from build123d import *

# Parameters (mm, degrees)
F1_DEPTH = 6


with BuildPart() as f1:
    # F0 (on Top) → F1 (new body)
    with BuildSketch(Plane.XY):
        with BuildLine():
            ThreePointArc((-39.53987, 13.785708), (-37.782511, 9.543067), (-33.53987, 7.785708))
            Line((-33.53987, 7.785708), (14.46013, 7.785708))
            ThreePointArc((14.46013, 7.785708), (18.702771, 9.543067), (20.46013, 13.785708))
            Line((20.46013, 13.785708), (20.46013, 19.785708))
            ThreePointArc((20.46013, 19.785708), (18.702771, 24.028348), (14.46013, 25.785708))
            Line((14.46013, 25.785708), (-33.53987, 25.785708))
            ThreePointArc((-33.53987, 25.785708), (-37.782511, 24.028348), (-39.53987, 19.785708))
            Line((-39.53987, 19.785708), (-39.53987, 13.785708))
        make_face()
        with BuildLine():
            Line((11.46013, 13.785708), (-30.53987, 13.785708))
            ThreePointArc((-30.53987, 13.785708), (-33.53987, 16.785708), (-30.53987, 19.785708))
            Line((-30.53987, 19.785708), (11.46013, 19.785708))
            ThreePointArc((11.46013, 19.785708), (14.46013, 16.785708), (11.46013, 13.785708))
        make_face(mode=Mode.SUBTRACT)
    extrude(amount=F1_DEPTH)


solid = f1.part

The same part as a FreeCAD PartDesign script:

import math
import FreeCAD as App
import Part
import Sketcher

V = App.Vector
Q = App.Units.Quantity

doc = App.newDocument("Part")
body = doc.addObject("PartDesign::Body", "Body")

# Sketch on XY plane
sketch1 = body.newObject("Sketcher::SketchObject", "Sketch")
sketch1.AttachmentSupport = (doc.getObject("XY_Plane"), [""])
sketch1.MapMode = "FlatFace"
sketch1.addGeometry(Part.ArcOfCircle(Part.Circle(V(-33.5, 13.8, 0), V(0, 0, 1), 6), math.radians(180), math.radians(270)), False)
sketch1.addGeometry(Part.LineSegment(V(-33.5, 7.8, 0), V(14.5, 7.8, 0)), False)
sketch1.addGeometry(Part.ArcOfCircle(Part.Circle(V(14.5, 13.8, 0), V(0, 0, 1), 6), math.radians(-90), math.radians(0)), False)
sketch1.addGeometry(Part.LineSegment(V(20.5, 13.8, 0), V(20.5, 19.8, 0)), False)
sketch1.addGeometry(Part.ArcOfCircle(Part.Circle(V(14.5, 19.8, 0), V(0, 0, 1), 6), math.radians(0), math.radians(90)), False)
sketch1.addGeometry(Part.LineSegment(V(14.5, 25.8, 0), V(-33.5, 25.8, 0)), False)
sketch1.addGeometry(Part.ArcOfCircle(Part.Circle(V(-33.5, 19.8, 0), V(0, 0, 1), 6), math.radians(90), math.radians(180)), False)
sketch1.addGeometry(Part.LineSegment(V(-39.5, 19.8, 0), V(-39.5, 13.8, 0)), False)
sketch1.addGeometry(Part.ArcOfCircle(Part.Circle(V(11.5, 16.8, 0), V(0, 0, 1), 3), math.radians(-90), math.radians(90)), False)
sketch1.addGeometry(Part.LineSegment(V(11.5, 13.8, 0), V(-30.5, 13.8, 0)), False)
sketch1.addGeometry(Part.ArcOfCircle(Part.Circle(V(-30.5, 16.8, 0), V(0, 0, 1), 3), math.radians(90), math.radians(270)), False)
sketch1.addGeometry(Part.LineSegment(V(-30.5, 19.8, 0), V(11.5, 19.8, 0)), False)
sketch1.addConstraint(Sketcher.Constraint("Tangent", 0, 2, 1, 1))
sketch1.addConstraint(Sketcher.Constraint("Tangent", 1, 2, 2, 1))
sketch1.addConstraint(Sketcher.Constraint("Tangent", 2, 2, 3, 1))
sketch1.addConstraint(Sketcher.Constraint("Tangent", 3, 2, 4, 1))
sketch1.addConstraint(Sketcher.Constraint("Tangent", 4, 2, 5, 1))
sketch1.addConstraint(Sketcher.Constraint("Tangent", 5, 2, 6, 1))
sketch1.addConstraint(Sketcher.Constraint("Tangent", 6, 2, 7, 1))
sketch1.addConstraint(Sketcher.Constraint("Tangent", 7, 2, 0, 1))
sketch1.addConstraint(Sketcher.Constraint("Tangent", 8, 1, 9, 1))
sketch1.addConstraint(Sketcher.Constraint("Tangent", 9, 2, 10, 2))
sketch1.addConstraint(Sketcher.Constraint("Tangent", 10, 1, 11, 1))
sketch1.addConstraint(Sketcher.Constraint("Tangent", 11, 2, 8, 2))
sketch1.addConstraint(Sketcher.Constraint("Horizontal", 1))
sketch1.addConstraint(Sketcher.Constraint("Vertical", 3))
sketch1.addConstraint(Sketcher.Constraint("Horizontal", 5))
sketch1.addConstraint(Sketcher.Constraint("Vertical", 7))
sketch1.addConstraint(Sketcher.Constraint("Horizontal", 9))
sketch1.addConstraint(Sketcher.Constraint("Horizontal", 11))
sketch1.addConstraint(Sketcher.Constraint("Equal", 0, 2))
sketch1.addConstraint(Sketcher.Constraint("Equal", 2, 4))
sketch1.addConstraint(Sketcher.Constraint("Equal", 4, 6))
sketch1.addConstraint(Sketcher.Constraint("Horizontal", 7, 2, 8, 1))
sketch1.addConstraint(Sketcher.Constraint("Horizontal", 6, 2, 10, 1))
sketch1.addConstraint(Sketcher.Constraint("Radius", 0, Q("5.999999 mm")))
sketch1.addConstraint(Sketcher.Constraint("Radius", 8, Q("3 mm")))
sketch1.addConstraint(Sketcher.Constraint("DistanceX", 1, 1, 1, 2, Q("48 mm")))
sketch1.addConstraint(Sketcher.Constraint("DistanceX", 9, 2, 9, 1, Q("42 mm")))
sketch1.addConstraint(Sketcher.Constraint("DistanceX", 8, 3, 4, 3, Q("2.999999 mm")))
sketch1.addConstraint(Sketcher.Constraint("DistanceX", 0, 3, -1, 1, Q("33.539871 mm")))
sketch1.addConstraint(Sketcher.Constraint("DistanceY", -1, 1, 0, 2, Q("7.785708 mm")))
pad1 = body.newObject("PartDesign::Pad", "Pad")
pad1.Profile = sketch1
pad1.Length = 6

doc.recompute()
